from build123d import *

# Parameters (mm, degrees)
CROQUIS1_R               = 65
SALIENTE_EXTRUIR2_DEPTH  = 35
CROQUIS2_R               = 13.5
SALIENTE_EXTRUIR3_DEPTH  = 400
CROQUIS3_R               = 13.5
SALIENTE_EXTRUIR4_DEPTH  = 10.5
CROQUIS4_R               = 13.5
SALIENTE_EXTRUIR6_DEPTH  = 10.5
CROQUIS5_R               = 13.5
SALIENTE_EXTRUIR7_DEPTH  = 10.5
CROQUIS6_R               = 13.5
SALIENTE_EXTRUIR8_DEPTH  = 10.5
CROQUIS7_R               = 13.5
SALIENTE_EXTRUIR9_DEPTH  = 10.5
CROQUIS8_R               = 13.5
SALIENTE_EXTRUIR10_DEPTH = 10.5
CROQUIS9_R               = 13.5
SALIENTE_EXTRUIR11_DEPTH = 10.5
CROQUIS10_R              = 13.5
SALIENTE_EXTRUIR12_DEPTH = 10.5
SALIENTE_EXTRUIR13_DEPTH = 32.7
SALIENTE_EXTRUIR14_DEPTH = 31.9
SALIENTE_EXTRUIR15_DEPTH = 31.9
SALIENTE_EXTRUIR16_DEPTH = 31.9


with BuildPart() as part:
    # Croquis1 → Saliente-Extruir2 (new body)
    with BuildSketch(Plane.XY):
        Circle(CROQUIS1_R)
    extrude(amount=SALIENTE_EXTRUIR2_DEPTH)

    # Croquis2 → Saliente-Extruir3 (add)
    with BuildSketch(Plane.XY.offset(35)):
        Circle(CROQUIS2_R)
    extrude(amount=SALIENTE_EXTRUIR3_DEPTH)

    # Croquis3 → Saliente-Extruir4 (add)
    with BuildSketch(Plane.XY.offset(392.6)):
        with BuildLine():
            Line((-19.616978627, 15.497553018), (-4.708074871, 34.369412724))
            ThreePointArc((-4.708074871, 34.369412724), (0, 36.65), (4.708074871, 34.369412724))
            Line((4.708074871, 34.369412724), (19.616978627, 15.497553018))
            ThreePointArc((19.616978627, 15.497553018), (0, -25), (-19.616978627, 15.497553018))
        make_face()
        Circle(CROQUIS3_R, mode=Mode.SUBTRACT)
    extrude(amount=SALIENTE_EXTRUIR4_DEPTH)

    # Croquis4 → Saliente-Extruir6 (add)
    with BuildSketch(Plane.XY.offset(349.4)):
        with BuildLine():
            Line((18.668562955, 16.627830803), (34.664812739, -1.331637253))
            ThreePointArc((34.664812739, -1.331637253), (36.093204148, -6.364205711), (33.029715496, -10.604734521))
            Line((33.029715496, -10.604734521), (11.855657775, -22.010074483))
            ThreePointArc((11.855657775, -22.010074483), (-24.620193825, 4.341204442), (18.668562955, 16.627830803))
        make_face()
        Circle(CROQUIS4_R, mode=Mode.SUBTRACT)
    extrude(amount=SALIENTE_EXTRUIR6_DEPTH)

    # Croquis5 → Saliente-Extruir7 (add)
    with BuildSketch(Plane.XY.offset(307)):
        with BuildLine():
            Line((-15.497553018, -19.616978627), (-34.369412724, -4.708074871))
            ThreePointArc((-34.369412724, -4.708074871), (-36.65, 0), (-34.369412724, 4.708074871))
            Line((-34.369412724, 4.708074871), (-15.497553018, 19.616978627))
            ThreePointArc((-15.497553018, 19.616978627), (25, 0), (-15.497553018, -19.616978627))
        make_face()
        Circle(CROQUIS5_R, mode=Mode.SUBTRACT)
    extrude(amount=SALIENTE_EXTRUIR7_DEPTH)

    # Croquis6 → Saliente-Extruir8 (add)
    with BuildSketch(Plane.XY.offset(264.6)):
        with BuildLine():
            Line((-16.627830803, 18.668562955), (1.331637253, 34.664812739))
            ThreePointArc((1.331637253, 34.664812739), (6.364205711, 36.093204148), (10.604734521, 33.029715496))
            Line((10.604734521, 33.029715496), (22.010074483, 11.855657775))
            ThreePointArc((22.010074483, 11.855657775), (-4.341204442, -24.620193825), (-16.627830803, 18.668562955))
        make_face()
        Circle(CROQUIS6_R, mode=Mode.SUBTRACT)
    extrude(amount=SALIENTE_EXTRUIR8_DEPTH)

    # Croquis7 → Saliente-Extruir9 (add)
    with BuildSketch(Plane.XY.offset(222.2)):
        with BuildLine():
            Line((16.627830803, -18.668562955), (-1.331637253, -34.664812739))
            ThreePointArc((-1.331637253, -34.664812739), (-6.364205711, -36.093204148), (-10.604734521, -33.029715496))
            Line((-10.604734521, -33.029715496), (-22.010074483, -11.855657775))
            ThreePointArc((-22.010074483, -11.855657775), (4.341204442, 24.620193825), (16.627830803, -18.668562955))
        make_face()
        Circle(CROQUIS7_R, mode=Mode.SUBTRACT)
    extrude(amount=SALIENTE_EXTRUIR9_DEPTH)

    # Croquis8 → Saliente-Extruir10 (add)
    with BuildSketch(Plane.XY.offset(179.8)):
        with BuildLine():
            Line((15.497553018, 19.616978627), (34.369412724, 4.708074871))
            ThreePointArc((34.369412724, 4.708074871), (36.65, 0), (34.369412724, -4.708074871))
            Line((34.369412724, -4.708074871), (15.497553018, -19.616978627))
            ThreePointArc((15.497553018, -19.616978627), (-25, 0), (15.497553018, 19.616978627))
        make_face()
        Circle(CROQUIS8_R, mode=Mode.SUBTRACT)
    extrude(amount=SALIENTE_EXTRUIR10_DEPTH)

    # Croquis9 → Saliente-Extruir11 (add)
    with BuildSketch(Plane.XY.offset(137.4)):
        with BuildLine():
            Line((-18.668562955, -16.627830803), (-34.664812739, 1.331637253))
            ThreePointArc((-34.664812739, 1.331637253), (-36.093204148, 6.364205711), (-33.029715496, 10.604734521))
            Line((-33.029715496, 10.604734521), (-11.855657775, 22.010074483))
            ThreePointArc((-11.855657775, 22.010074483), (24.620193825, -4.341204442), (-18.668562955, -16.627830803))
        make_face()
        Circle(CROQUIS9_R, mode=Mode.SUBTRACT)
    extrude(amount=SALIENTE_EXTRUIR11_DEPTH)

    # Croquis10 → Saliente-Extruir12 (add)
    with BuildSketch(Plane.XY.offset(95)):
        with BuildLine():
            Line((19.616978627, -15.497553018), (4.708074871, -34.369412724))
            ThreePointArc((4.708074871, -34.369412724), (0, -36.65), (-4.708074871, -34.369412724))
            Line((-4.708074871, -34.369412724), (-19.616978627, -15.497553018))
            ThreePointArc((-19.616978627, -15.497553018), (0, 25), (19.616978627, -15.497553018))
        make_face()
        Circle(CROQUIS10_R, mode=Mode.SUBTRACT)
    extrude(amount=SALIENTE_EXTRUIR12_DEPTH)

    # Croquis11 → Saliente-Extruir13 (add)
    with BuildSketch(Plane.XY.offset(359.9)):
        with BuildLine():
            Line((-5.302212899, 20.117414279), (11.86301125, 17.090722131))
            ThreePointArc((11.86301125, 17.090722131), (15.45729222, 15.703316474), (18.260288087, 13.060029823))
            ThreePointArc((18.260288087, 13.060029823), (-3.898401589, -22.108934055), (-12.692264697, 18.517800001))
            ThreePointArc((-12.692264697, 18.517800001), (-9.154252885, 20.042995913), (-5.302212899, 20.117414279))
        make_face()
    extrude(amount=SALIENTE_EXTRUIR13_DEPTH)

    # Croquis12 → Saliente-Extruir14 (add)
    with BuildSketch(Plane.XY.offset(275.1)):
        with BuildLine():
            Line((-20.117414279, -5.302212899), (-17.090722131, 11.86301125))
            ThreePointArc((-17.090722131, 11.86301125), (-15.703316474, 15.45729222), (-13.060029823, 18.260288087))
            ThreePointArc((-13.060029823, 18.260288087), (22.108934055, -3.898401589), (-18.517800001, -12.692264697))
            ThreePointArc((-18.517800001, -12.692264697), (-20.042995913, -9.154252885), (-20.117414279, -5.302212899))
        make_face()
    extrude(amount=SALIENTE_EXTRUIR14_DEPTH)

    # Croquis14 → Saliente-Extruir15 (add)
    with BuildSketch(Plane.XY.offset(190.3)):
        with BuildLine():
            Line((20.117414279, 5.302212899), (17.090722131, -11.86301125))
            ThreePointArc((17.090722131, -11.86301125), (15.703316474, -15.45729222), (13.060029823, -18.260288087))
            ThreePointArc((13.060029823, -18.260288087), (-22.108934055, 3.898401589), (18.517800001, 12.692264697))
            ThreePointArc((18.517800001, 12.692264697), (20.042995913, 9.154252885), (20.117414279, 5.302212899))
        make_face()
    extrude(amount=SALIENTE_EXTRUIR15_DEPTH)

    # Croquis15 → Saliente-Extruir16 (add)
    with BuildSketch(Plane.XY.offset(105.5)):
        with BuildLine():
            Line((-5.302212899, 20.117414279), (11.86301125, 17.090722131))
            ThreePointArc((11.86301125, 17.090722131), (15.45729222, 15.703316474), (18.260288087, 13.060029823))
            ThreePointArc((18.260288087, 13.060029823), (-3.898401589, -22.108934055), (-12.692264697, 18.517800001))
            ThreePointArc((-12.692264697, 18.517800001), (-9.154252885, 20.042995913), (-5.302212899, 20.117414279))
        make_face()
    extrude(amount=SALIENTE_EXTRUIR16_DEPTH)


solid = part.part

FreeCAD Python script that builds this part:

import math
import FreeCAD as App
import Part
import Sketcher

V = App.Vector
Q = App.Units.Quantity

doc = App.newDocument("Part")
body = doc.addObject("PartDesign::Body", "Body")

sketch1 = body.newObject("Sketcher::SketchObject", "Sketch")
sketch1.AttachmentSupport = (doc.getObject("XY_Plane"), [""])
sketch1.MapMode = "FlatFace"
sketch1.addGeometry(Part.Circle(V(0, 0, 0), V(0, 0, 1), 65), False)
sketch1.addConstraint([
    Sketcher.Constraint("Coincident", 0, 3, -1, 1),
    Sketcher.Constraint("Diameter", 0, 130.0),
])
pad1 = body.newObject("PartDesign::Pad", "Pad")
pad1.Profile = sketch1
pad1.Length = 35

sketch2 = body.newObject("Sketcher::SketchObject", "Sketch001")
sketch2.AttachmentSupport = (doc.getObject("XY_Plane"), [""])
sketch2.MapMode = "FlatFace"
sketch2.AttachmentOffset = App.Placement(V(0, 0, 35), App.Rotation())
sketch2.addGeometry(Part.Circle(V(0, 0, 0), V(0, 0, 1), 14), False)
sketch2.addConstraint([
    Sketcher.Constraint("Coincident", 0, 3, -1, 1),
    Sketcher.Constraint("Diameter", 0, 27.0),
])
pad2 = body.newObject("PartDesign::Pad", "Pad001")
pad2.Profile = sketch2
pad2.Length = 400

sketch3 = body.newObject("Sketcher::SketchObject", "Sketch002")
sketch3.AttachmentSupport = (doc.getObject("XY_Plane"), [""])
sketch3.MapMode = "FlatFace"
sketch3.AttachmentOffset = App.Placement(V(0, 0, 392.6), App.Rotation())
sketch3.addGeometry([
    Part.LineSegment(V(-5, 34, 0), V(-20, 15, 0)),
    Part.ArcOfCircle(Part.Circle(V(0, 0, 0), V(0, 0, 1), 25), math.radians(142), math.radians(398)),
    Part.LineSegment(V(20, 15, 0), V(5, 34, 0)),
    Part.ArcOfCircle(Part.Circle(V(0, 31, 0), V(0, 0, 1), 6), math.radians(38), math.radians(142)),
    Part.Circle(V(0, 0, 0), V(0, 0, 1), 14),
], False)
sketch3.addConstraint([
    Sketcher.Constraint("Tangent", 0, 2, 1, 1),
    Sketcher.Constraint("Tangent", 1, 2, 2, 1),
    Sketcher.Constraint("Tangent", 2, 2, 3, 1),
    Sketcher.Constraint("Tangent", 3, 2, 0, 1),
    Sketcher.Constraint("Coincident", 1, 3, -1, 1),
    Sketcher.Constraint("Coincident", 4, 3, -1, 1),
    Sketcher.Constraint("PointOnObject", 3, 3, -2),
    Sketcher.Constraint("Diameter", 4, 27.0),
    Sketcher.Constraint("Radius", 1, 25.0),
    Sketcher.Constraint("Radius", 3, 6.0),
    Sketcher.Constraint("DistanceY", -1, 1, 3, 3, 30.65),
])
pad3 = body.newObject("PartDesign::Pad", "Pad002")
pad3.Profile = sketch3
pad3.Length = 10.5

sketch4 = body.newObject("Sketcher::SketchObject", "Sketch003")
sketch4.AttachmentSupport = (doc.getObject("XY_Plane"), [""])
sketch4.MapMode = "FlatFace"
sketch4.AttachmentOffset = App.Placement(V(0, 0, 349.4), App.Rotation())
sketch4.addGeometry([
    Part.LineSegment(V(35, -1, 0), V(19, 17, 0)),
    Part.ArcOfCircle(Part.Circle(V(0, 0, 0), V(0, 0, 1), 25), math.radians(42), math.radians(298)),
    Part.LineSegment(V(12, -22, 0), V(33, -11, 0)),
    Part.ArcOfCircle(Part.Circle(V(30, -5, 0), V(0, 0, 1), 6), math.radians(-62), math.radians(42)),
    Part.Circle(V(0, 0, 0), V(0, 0, 1), 14),
], False)
sketch4.addConstraint([
    Sketcher.Constraint("Tangent", 0, 2, 1, 1),
    Sketcher.Constraint("Tangent", 1, 2, 2, 1),
    Sketcher.Constraint("Tangent", 2, 2, 3, 1),
    Sketcher.Constraint("Tangent", 3, 2, 0, 1),
    Sketcher.Constraint("Coincident", 1, 3, -1, 1),
    Sketcher.Constraint("Coincident", 4, 3, -1, 1),
    Sketcher.Constraint("Diameter", 4, 27.0),
    Sketcher.Constraint("Radius", 1, 25.0),
    Sketcher.Constraint("Radius", 3, 6.0),
    Sketcher.Constraint("DistanceX", 1, 2, 3, 3, 18.3287),
    Sketcher.Constraint("DistanceY", -1, 1, 0, 2, 16.627831),
])
pad4 = body.newObject("PartDesign::Pad", "Pad003")
pad4.Profile = sketch4
pad4.Length = 10.5

sketch5 = body.newObject("Sketcher::SketchObject", "Sketch004")
sketch5.AttachmentSupport = (doc.getObject("XY_Plane"), [""])
sketch5.MapMode = "FlatFace"
sketch5.AttachmentOffset = App.Placement(V(0, 0, 307), App.Rotation())
sketch5.addGeometry([
    Part.LineSegment(V(-34, -5, 0), V(-15, -20, 0)),
    Part.ArcOfCircle(Part.Circle(V(0, 0, 0), V(0, 0, 1), 25), math.radians(-128), math.radians(128)),
    Part.LineSegment(V(-15, 20, 0), V(-34, 5, 0)),
    Part.ArcOfCircle(Part.Circle(V(-31, 0, 0), V(0, 0, 1), 6), math.radians(128), math.radians(232)),
    Part.Circle(V(0, 0, 0), V(0, 0, 1), 14),
], False)
sketch5.addConstraint([
    Sketcher.Constraint("Tangent", 0, 2, 1, 1),
    Sketcher.Constraint("Tangent", 1, 2, 2, 1),
    Sketcher.Constraint("Tangent", 2, 2, 3, 1),
    Sketcher.Constraint("Tangent", 3, 2, 0, 1),
    Sketcher.Constraint("Coincident", 1, 3, -1, 1),
    Sketcher.Constraint("Coincident", 4, 3, -1, 1),
    Sketcher.Constraint("PointOnObject", 3, 3, -1),
    Sketcher.Constraint("Diameter", 4, 27.0),
    Sketcher.Constraint("Radius", 1, 25.0),
    Sketcher.Constraint("Radius", 3, 6.0),
    Sketcher.Constraint("DistanceX", 3, 3, -1, 1, 30.65),
])
pad5 = body.newObject("PartDesign::Pad", "Pad004")
pad5.Profile = sketch5
pad5.Length = 10.5

sketch6 = body.newObject("Sketcher::SketchObject", "Sketch005")
sketch6.AttachmentSupport = (doc.getObject("XY_Plane"), [""])
sketch6.MapMode = "FlatFace"
sketch6.AttachmentOffset = App.Placement(V(0, 0, 264.6), App.Rotation())
sketch6.addGeometry([
    Part.LineSegment(V(1, 35, 0), V(-17, 19, 0)),
    Part.ArcOfCircle(Part.Circle(V(0, 0, 0), V(0, 0, 1), 25), math.radians(132), math.radians(388)),
    Part.LineSegment(V(22, 12, 0), V(11, 33, 0)),
    Part.ArcOfCircle(Part.Circle(V(5, 30, 0), V(0, 0, 1), 6), math.radians(28), math.radians(132)),
    Part.Circle(V(0, 0, 0), V(0, 0, 1), 14),
], False)
sketch6.addConstraint([
    Sketcher.Constraint("Tangent", 0, 2, 1, 1),
    Sketcher.Constraint("Tangent", 1, 2, 2, 1),
    Sketcher.Constraint("Tangent", 2, 2, 3, 1),
    Sketcher.Constraint("Tangent", 3, 2, 0, 1),
    Sketcher.Constraint("Coincident", 1, 3, -1, 1),
    Sketcher.Constraint("Coincident", 4, 3, -1, 1),
    Sketcher.Constraint("Diameter", 4, 27.0),
    Sketcher.Constraint("Radius", 1, 25.0),
    Sketcher.Constraint("Radius", 3, 6.0),
    Sketcher.Constraint("DistanceY", 1, 2, 3, 3, 18.3287),
    Sketcher.Constraint("DistanceX", 0, 2, -1, 1, 16.627831),
])
pad6 = body.newObject("PartDesign::Pad", "Pad005")
pad6.Profile = sketch6
pad6.Length = 10.5

sketch7 = body.newObject("Sketcher::SketchObject", "Sketch006")
sketch7.AttachmentSupport = (doc.getObject("XY_Plane"), [""])
sketch7.MapMode = "FlatFace"
sketch7.AttachmentOffset = App.Placement(V(0, 0, 222.2), App.Rotation())
sketch7.addGeometry([
    Part.LineSegment(V(-1, -35, 0), V(17, -19, 0)),
    Part.ArcOfCircle(Part.Circle(V(0, 0, 0), V(0, 0, 1), 25), math.radians(-48), math.radians(208)),
    Part.LineSegment(V(-22, -12, 0), V(-11, -33, 0)),
    Part.ArcOfCircle(Part.Circle(V(-5, -30, 0), V(0, 0, 1), 6), math.radians(-152), math.radians(-48)),
    Part.Circle(V(0, 0, 0), V(0, 0, 1), 14),
], False)
sketch7.addConstraint([
    Sketcher.Constraint("Tangent", 0, 2, 1, 1),
    Sketcher.Constraint("Tangent", 1, 2, 2, 1),
    Sketcher.Constraint("Tangent", 2, 2, 3, 1),
    Sketcher.Constraint("Tangent", 3, 2, 0, 1),
    Sketcher.Constraint("Coincident", 1, 3, -1, 1),
    Sketcher.Constraint("Coincident", 4, 3, -1, 1),
    Sketcher.Constraint("Diameter", 4, 27.0),
    Sketcher.Constraint("Radius", 1, 25.0),
    Sketcher.Constraint("Radius", 3, 6.0),
    Sketcher.Constraint("DistanceY", 3, 3, 1, 2, 18.3287),
    Sketcher.Constraint("DistanceX", -1, 1, 0, 2, 16.627831),
])
pad7 = body.newObject("PartDesign::Pad", "Pad006")
pad7.Profile = sketch7
pad7.Length = 10.5

sketch8 = body.newObject("Sketcher::SketchObject", "Sketch007")
sketch8.AttachmentSupport = (doc.getObject("XY_Plane"), [""])
sketch8.MapMode = "FlatFace"
sketch8.AttachmentOffset = App.Placement(V(0, 0, 179.8), App.Rotation())
sketch8.addGeometry([
    Part.LineSegment(V(34, 5, 0), V(15, 20, 0)),
    Part.ArcOfCircle(Part.Circle(V(0, 0, 0), V(0, 0, 1), 25), math.radians(52), math.radians(308)),
    Part.LineSegment(V(15, -20, 0), V(34, -5, 0)),
    Part.ArcOfCircle(Part.Circle(V(31, 0, 0), V(0, 0, 1), 6), math.radians(-52), math.radians(52)),
    Part.Circle(V(0, 0, 0), V(0, 0, 1), 14),
], False)
sketch8.addConstraint([
    Sketcher.Constraint("Tangent", 0, 2, 1, 1),
    Sketcher.Constraint("Tangent", 1, 2, 2, 1),
    Sketcher.Constraint("Tangent", 2, 2, 3, 1),
    Sketcher.Constraint("Tangent", 3, 2, 0, 1),
    Sketcher.Constraint("Coincident", 1, 3, -1, 1),
    Sketcher.Constraint("Coincident", 4, 3, -1, 1),
    Sketcher.Constraint("PointOnObject", 3, 3, -1),
    Sketcher.Constraint("Diameter", 4, 27.0),
    Sketcher.Constraint("Radius", 1, 25.0),
    Sketcher.Constraint("Radius", 3, 6.0),
    Sketcher.Constraint("DistanceX", -1, 1, 3, 3, 30.65),
])
pad8 = body.newObject("PartDesign::Pad", "Pad007")
pad8.Profile = sketch8
pad8.Length = 10.5

sketch9 = body.newObject("Sketcher::SketchObject", "Sketch008")
sketch9.AttachmentSupport = (doc.getObject("XY_Plane"), [""])
sketch9.MapMode = "FlatFace"
sketch9.AttachmentOffset = App.Placement(V(0, 0, 137.4), App.Rotation())
sketch9.addGeometry([
    Part.LineSegment(V(-35, 1, 0), V(-19, -17, 0)),
    Part.ArcOfCircle(Part.Circle(V(0, 0, 0), V(0, 0, 1), 25), math.radians(-138), math.radians(118)),
    Part.LineSegment(V(-12, 22, 0), V(-33, 11, 0)),
    Part.ArcOfCircle(Part.Circle(V(-30, 5, 0), V(0, 0, 1), 6), math.radians(118), math.radians(222)),
    Part.Circle(V(0, 0, 0), V(0, 0, 1), 14),
], False)
sketch9.addConstraint([
    Sketcher.Constraint("Tangent", 0, 2, 1, 1),
    Sketcher.Constraint("Tangent", 1, 2, 2, 1),
    Sketcher.Constraint("Tangent", 2, 2, 3, 1),
    Sketcher.Constraint("Tangent", 3, 2, 0, 1),
    Sketcher.Constraint("Coincident", 1, 3, -1, 1),
    Sketcher.Constraint("Coincident", 4, 3, -1, 1),
    Sketcher.Constraint("Diameter", 4, 27.0),
    Sketcher.Constraint("Radius", 1, 25.0),
    Sketcher.Constraint("Radius", 3, 6.0),
    Sketcher.Constraint("DistanceX", 3, 3, 1, 2, 18.3287),
    Sketcher.Constraint("DistanceY", 0, 2, -1, 1, 16.627831),
])
pad9 = body.newObject("PartDesign::Pad", "Pad008")
pad9.Profile = sketch9
pad9.Length = 10.5

sketch10 = body.newObject("Sketcher::SketchObject", "Sketch009")
sketch10.AttachmentSupport = (doc.getObject("XY_Plane"), [""])
sketch10.MapMode = "FlatFace"
sketch10.AttachmentOffset = App.Placement(V(0, 0, 95), App.Rotation())
sketch10.addGeometry([
    Part.LineSegment(V(5, -34, 0), V(20, -15, 0)),
    Part.ArcOfCircle(Part.Circle(V(0, 0, 0), V(0, 0, 1), 25), math.radians(-38), math.radians(218)),
    Part.LineSegment(V(-20, -15, 0), V(-5, -34, 0)),
    Part.ArcOfCircle(Part.Circle(V(0, -31, 0), V(0, 0, 1), 6), math.radians(-142), math.radians(-38)),
    Part.Circle(V(0, 0, 0), V(0, 0, 1), 14),
], False)
sketch10.addConstraint([
    Sketcher.Constraint("Tangent", 0, 2, 1, 1),
    Sketcher.Constraint("Tangent", 1, 2, 2, 1),
    Sketcher.Constraint("Tangent", 2, 2, 3, 1),
    Sketcher.Constraint("Tangent", 3, 2, 0, 1),
    Sketcher.Constraint("Coincident", 1, 3, -1, 1),
    Sketcher.Constraint("Coincident", 4, 3, -1, 1),
    Sketcher.Constraint("PointOnObject", 3, 3, -2),
    Sketcher.Constraint("Diameter", 4, 27.0),
    Sketcher.Constraint("Radius", 1, 25.0),
    Sketcher.Constraint("Radius", 3, 6.0),
    Sketcher.Constraint("DistanceY", 3, 3, -1, 1, 30.65),
])
pad10 = body.newObject("PartDesign::Pad", "Pad009")
pad10.Profile = sketch10
pad10.Length = 10.5

sketch11 = body.newObject("Sketcher::SketchObject", "Sketch010")
sketch11.AttachmentSupport = (doc.getObject("XY_Plane"), [""])
sketch11.MapMode = "FlatFace"
sketch11.AttachmentOffset = App.Placement(V(0, 0, 359.9), App.Rotation())
sketch11.addGeometry([
    Part.LineSegment(V(12, 17, 0), V(-5, 20, 0)),
    Part.ArcOfCircle(Part.Circle(V(-7, 10, 0), V(0, 0, 1), 10), math.radians(80), math.radians(124)),
    Part.ArcOfCircle(Part.Circle(V(0, 0, 0), V(0, 0, 1), 22), math.radians(124), math.radians(396)),
    Part.ArcOfCircle(Part.Circle(V(10, 7, 0), V(0, 0, 1), 10), math.radians(36), math.radians(80)),
], False)
sketch11.addConstraint([
    Sketcher.Constraint("Tangent", 0, 2, 1, 1),
    Sketcher.Constraint("Tangent", 1, 2, 2, 1),
    Sketcher.Constraint("Tangent", 2, 2, 3, 1),
    Sketcher.Constraint("Tangent", 3, 2, 0, 1),
    Sketcher.Constraint("Coincident", 2, 3, -1, 1),
    Sketcher.Constraint("Equal", 1, 3),
    Sketcher.Constraint("Radius", 1, 10.0),
    Sketcher.Constraint("Angle", 0, Q("170 deg")),
    Sketcher.Constraint("Radius", 2, 22.45),
    Sketcher.Constraint("DistanceY", -1, 1, 1, 2, 18.5178),
])
pad11 = body.newObject("PartDesign::Pad", "Pad010")
pad11.Profile = sketch11
pad11.Length = 32.7

sketch12 = body.newObject("Sketcher::SketchObject", "Sketch011")
sketch12.AttachmentSupport = (doc.getObject("XY_Plane"), [""])
sketch12.MapMode = "FlatFace"
sketch12.AttachmentOffset = App.Placement(V(0, 0, 275.1), App.Rotation())
sketch12.addGeometry([
    Part.LineSegment(V(-17, 12, 0), V(-20, -5, 0)),
    Part.ArcOfCircle(Part.Circle(V(-10, -7, 0), V(0, 0, 1), 10), math.radians(170), math.radians(214)),
    Part.ArcOfCircle(Part.Circle(V(0, 0, 0), V(0, 0, 1), 22), math.radians(-146), math.radians(126)),
    Part.ArcOfCircle(Part.Circle(V(-7, 10, 0), V(0, 0, 1), 10), math.radians(126), math.radians(170)),
], False)
sketch12.addConstraint([
    Sketcher.Constraint("Tangent", 0, 2, 1, 1),
    Sketcher.Constraint("Tangent", 1, 2, 2, 1),
    Sketcher.Constraint("Tangent", 2, 2, 3, 1),
    Sketcher.Constraint("Tangent", 3, 2, 0, 1),
    Sketcher.Constraint("Coincident", 2, 3, -1, 1),
    Sketcher.Constraint("Equal", 1, 3),
    Sketcher.Constraint("Radius", 1, 10.0),
    Sketcher.Constraint("Angle", 0, Q("-100 deg")),
    Sketcher.Constraint("Radius", 2, 22.45),
    Sketcher.Constraint("DistanceX", 1, 2, -1, 1, 18.5178),
])
pad12 = body.newObject("PartDesign::Pad", "Pad011")
pad12.Profile = sketch12
pad12.Length = 31.9

sketch13 = body.newObject("Sketcher::SketchObject", "Sketch012")
sketch13.AttachmentSupport = (doc.getObject("XY_Plane"), [""])
sketch13.MapMode = "FlatFace"
sketch13.AttachmentOffset = App.Placement(V(0, 0, 190.3), App.Rotation())
sketch13.addGeometry([
    Part.LineSegment(V(17, -12, 0), V(20, 5, 0)),
    Part.ArcOfCircle(Part.Circle(V(10, 7, 0), V(0, 0, 1), 10), math.radians(-10), math.radians(34)),
    Part.ArcOfCircle(Part.Circle(V(0, 0, 0), V(0, 0, 1), 22), math.radians(34), math.radians(306)),
    Part.ArcOfCircle(Part.Circle(V(7, -10, 0), V(0, 0, 1), 10), math.radians(-54), math.radians(-10)),
], False)
sketch13.addConstraint([
    Sketcher.Constraint("Tangent", 0, 2, 1, 1),
    Sketcher.Constraint("Tangent", 1, 2, 2, 1),
    Sketcher.Constraint("Tangent", 2, 2, 3, 1),
    Sketcher.Constraint("Tangent", 3, 2, 0, 1),
    Sketcher.Constraint("Coincident", 2, 3, -1, 1),
    Sketcher.Constraint("Equal", 1, 3),
    Sketcher.Constraint("Radius", 1, 10.0),
    Sketcher.Constraint("Angle", 0, Q("80 deg")),
    Sketcher.Constraint("Radius", 2, 22.45),
    Sketcher.Constraint("DistanceX", -1, 1, 1, 2, 18.5178),
])
pad13 = body.newObject("PartDesign::Pad", "Pad012")
pad13.Profile = sketch13
pad13.Length = 31.9

sketch14 = body.newObject("Sketcher::SketchObject", "Sketch013")
sketch14.AttachmentSupport = (doc.getObject("XY_Plane"), [""])
sketch14.MapMode = "FlatFace"
sketch14.AttachmentOffset = App.Placement(V(0, 0, 105.5), App.Rotation())
sketch14.addGeometry([
    Part.LineSegment(V(12, 17, 0), V(-5, 20, 0)),
    Part.ArcOfCircle(Part.Circle(V(-7, 10, 0), V(0, 0, 1), 10), math.radians(80), math.radians(124)),
    Part.ArcOfCircle(Part.Circle(V(0, 0, 0), V(0, 0, 1), 22), math.radians(124), math.radians(396)),
    Part.ArcOfCircle(Part.Circle(V(10, 7, 0), V(0, 0, 1), 10), math.radians(36), math.radians(80)),
], False)
sketch14.addConstraint([
    Sketcher.Constraint("Tangent", 0, 2, 1, 1),
    Sketcher.Constraint("Tangent", 1, 2, 2, 1),
    Sketcher.Constraint("Tangent", 2, 2, 3, 1),
    Sketcher.Constraint("Tangent", 3, 2, 0, 1),
    Sketcher.Constraint("Coincident", 2, 3, -1, 1),
    Sketcher.Constraint("Equal", 1, 3),
    Sketcher.Constraint("Radius", 1, 10.0),
    Sketcher.Constraint("Angle", 0, Q("170 deg")),
    Sketcher.Constraint("Radius", 2, 22.45),
    Sketcher.Constraint("DistanceY", -1, 1, 1, 2, 18.5178),
])
pad14 = body.newObject("PartDesign::Pad", "Pad013")
pad14.Profile = sketch14
pad14.Length = 31.9

doc.recompute()
